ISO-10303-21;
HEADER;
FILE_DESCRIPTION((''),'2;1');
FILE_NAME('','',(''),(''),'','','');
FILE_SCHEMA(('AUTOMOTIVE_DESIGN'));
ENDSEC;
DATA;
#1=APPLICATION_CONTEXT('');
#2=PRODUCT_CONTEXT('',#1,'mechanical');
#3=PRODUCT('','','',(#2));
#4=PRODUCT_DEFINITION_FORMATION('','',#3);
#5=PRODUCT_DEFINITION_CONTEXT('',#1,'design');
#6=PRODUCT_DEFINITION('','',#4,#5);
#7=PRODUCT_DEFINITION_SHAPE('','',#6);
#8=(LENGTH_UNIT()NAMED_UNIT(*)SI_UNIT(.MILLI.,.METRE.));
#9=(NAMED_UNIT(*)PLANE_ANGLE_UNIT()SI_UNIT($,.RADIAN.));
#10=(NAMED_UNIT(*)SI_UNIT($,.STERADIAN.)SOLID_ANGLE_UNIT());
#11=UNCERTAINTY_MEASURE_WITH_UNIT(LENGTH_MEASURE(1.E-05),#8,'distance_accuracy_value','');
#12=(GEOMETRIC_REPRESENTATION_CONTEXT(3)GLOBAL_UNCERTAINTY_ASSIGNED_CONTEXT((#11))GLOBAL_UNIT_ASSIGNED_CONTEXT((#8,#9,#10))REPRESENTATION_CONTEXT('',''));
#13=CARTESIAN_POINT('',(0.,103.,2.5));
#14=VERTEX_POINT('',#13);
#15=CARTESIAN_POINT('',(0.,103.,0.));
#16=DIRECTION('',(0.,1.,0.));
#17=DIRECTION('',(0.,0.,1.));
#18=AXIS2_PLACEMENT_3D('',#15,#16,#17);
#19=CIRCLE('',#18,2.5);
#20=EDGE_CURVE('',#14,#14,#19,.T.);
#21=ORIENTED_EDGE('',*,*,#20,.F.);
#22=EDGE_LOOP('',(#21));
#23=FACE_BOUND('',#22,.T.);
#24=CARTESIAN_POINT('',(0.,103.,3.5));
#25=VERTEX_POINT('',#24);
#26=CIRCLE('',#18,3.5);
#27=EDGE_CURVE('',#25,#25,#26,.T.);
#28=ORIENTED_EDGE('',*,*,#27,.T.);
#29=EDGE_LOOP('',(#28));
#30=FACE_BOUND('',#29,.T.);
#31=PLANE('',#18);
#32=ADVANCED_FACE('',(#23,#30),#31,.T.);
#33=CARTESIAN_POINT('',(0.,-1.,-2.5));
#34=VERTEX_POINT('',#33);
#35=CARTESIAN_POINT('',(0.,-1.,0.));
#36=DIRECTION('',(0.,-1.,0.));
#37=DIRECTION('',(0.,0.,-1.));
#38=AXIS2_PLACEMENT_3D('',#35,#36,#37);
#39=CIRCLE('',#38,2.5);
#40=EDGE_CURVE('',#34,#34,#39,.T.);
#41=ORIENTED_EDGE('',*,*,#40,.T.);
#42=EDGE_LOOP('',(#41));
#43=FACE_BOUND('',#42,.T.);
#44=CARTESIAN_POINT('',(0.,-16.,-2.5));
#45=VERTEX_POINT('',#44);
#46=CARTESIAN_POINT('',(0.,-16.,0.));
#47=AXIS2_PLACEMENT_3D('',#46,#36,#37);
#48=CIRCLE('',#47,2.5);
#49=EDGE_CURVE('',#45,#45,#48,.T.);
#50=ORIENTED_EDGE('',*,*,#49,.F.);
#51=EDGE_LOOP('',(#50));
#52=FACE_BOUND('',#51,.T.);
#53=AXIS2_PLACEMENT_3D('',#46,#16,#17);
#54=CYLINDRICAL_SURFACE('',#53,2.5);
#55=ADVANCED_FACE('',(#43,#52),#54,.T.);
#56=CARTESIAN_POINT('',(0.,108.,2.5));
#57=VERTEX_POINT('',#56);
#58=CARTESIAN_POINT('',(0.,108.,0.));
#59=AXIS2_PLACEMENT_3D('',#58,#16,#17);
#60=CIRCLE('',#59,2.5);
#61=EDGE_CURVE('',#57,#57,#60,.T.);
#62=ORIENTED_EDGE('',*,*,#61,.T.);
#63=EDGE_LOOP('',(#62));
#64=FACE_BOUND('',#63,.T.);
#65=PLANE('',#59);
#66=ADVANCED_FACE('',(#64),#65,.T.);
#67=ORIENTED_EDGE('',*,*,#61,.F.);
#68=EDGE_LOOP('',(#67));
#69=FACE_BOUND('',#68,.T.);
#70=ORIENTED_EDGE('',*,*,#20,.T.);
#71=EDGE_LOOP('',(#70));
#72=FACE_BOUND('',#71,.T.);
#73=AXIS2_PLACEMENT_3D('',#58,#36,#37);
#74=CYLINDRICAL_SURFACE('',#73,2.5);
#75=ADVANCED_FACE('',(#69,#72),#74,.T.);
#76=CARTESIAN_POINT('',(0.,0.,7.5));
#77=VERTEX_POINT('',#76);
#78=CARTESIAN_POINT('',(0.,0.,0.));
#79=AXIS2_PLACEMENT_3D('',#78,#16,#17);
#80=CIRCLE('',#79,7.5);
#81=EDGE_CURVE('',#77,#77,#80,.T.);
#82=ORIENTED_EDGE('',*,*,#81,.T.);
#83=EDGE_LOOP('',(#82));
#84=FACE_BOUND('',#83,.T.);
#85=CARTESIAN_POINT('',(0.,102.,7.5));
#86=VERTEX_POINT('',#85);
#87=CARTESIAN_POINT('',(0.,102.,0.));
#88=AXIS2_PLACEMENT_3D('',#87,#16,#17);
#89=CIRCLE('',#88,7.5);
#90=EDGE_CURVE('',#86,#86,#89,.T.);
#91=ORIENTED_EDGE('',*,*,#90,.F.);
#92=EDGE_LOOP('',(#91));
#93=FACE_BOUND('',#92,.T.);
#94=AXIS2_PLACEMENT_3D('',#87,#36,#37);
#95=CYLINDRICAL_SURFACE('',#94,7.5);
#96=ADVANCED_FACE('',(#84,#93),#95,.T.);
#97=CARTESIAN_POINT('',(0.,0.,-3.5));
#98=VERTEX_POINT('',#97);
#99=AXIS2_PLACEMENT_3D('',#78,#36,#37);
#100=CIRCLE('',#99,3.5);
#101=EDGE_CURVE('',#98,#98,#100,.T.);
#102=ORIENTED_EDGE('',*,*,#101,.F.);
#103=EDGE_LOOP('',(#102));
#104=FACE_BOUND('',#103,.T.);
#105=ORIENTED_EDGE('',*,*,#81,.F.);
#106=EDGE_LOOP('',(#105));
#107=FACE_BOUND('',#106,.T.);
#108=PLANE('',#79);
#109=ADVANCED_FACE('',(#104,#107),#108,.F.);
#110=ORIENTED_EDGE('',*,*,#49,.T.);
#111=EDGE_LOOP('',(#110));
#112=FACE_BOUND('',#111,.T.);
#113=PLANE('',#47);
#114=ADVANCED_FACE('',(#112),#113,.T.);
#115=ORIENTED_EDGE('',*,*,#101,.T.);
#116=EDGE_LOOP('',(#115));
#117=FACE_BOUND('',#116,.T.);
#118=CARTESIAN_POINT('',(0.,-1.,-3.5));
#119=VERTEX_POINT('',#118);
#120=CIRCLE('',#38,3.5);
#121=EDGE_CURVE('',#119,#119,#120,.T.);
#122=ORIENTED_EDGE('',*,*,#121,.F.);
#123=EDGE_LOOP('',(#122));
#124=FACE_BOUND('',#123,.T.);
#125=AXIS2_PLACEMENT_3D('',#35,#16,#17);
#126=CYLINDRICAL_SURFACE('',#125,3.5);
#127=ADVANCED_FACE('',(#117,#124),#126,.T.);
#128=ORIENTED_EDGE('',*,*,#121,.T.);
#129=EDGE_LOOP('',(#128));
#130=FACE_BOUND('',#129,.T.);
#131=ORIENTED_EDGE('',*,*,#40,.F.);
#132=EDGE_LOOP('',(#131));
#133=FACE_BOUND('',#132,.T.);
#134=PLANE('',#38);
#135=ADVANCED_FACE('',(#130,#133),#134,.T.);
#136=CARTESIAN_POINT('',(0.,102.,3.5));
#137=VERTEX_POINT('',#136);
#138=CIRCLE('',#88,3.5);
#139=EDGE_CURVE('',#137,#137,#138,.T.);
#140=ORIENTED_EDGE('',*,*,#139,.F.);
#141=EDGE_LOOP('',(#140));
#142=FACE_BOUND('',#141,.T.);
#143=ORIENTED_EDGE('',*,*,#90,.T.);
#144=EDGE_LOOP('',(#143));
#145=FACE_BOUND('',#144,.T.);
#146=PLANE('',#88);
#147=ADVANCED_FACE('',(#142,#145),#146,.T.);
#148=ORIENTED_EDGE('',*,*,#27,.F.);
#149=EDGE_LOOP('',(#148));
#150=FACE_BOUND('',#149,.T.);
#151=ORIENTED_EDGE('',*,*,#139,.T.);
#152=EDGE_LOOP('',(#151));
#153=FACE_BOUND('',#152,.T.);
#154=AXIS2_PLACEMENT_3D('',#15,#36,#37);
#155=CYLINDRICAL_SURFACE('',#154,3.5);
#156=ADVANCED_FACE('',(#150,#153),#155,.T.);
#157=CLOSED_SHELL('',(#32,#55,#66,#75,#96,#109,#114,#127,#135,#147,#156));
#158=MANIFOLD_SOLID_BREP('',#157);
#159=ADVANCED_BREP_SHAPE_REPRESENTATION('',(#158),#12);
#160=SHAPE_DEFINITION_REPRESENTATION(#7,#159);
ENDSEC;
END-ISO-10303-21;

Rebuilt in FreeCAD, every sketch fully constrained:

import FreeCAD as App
import Part
import Sketcher

V = App.Vector
Q = App.Units.Quantity

doc = App.newDocument("Part")
body = doc.addObject("PartDesign::Body", "Body")

sketch1 = doc.addObject("Sketcher::SketchObject", "Sketch")
body.addObject(sketch1)
sketch1.AttachmentSupport = (doc.XZ_Plane, [""])
sketch1.MapMode = "FlatFace"
sketch1.addGeometry(Part.Circle(V(0, 0, 0), V(0, 0, 1), 7.5), False)
sketch1.addConstraint(Sketcher.Constraint("Coincident", 0, 3, -1, 1))
sketch1.addConstraint(Sketcher.Constraint("Diameter", 0, Q("15 mm")))
pad1 = doc.addObject("PartDesign::Pad", "Pad")
body.addObject(pad1)
pad1.Profile = sketch1
pad1.Length = 102
pad1.Reversed = True

sketch2 = doc.addObject("Sketcher::SketchObject", "Sketch001")
body.addObject(sketch2)
sketch2.AttachmentSupport = (doc.XZ_Plane, [""])
sketch2.MapMode = "FlatFace"
sketch2.addGeometry(Part.Circle(V(0, 0, 0), V(0, 0, 1), 3.5), False)
sketch2.addConstraint(Sketcher.Constraint("Coincident", 0, 3, -1, 1))
sketch2.addConstraint(Sketcher.Constraint("Diameter", 0, Q("7 mm")))
pad2 = doc.addObject("PartDesign::Pad", "Pad001")
body.addObject(pad2)
pad2.Profile = sketch2
pad2.Length = 1

sketch3 = doc.addObject("Sketcher::SketchObject", "Sketch002")
body.addObject(sketch3)
sketch3.AttachmentSupport = (doc.XZ_Plane, [""])
sketch3.MapMode = "FlatFace"
sketch3.AttachmentOffset = App.Placement(V(0, 0, 1), App.Rotation())
sketch3.addGeometry(Part.Circle(V(0, 0, 0), V(0, 0, 1), 2.5), False)
sketch3.addConstraint(Sketcher.Constraint("Coincident", 0, 3, -1, 1))
sketch3.addConstraint(Sketcher.Constraint("Diameter", 0, Q("5 mm")))
pad3 = doc.addObject("PartDesign::Pad", "Pad002")
body.addObject(pad3)
pad3.Profile = sketch3
pad3.Length = 15

sketch4 = doc.addObject("Sketcher::SketchObject", "Sketch003")
body.addObject(sketch4)
sketch4.AttachmentSupport = (doc.XZ_Plane, [""])
sketch4.MapMode = "FlatFace"
sketch4.AttachmentOffset = App.Placement(V(0, 0, -103), App.Rotation())
sketch4.addGeometry(Part.Circle(V(0, 0, 0), V(0, 0, 1), 3.5), False)
sketch4.addConstraint(Sketcher.Constraint("Coincident", 0, 3, -1, 1))
sketch4.addConstraint(Sketcher.Constraint("Diameter", 0, Q("7 mm")))
pad4 = doc.addObject("PartDesign::Pad", "Pad003")
body.addObject(pad4)
pad4.Profile = sketch4
pad4.Length = 1

sketch5 = doc.addObject("Sketcher::SketchObject", "Sketch004")
body.addObject(sketch5)
sketch5.AttachmentSupport = (doc.XZ_Plane, [""])
sketch5.MapMode = "FlatFace"
sketch5.AttachmentOffset = App.Placement(V(0, 0, -108), App.Rotation())
sketch5.addGeometry(Part.Circle(V(0, 0, 0), V(0, 0, 1), 2.5), False)
sketch5.addConstraint(Sketcher.Constraint("Coincident", 0, 3, -1, 1))
sketch5.addConstraint(Sketcher.Constraint("Diameter", 0, Q("5 mm")))
pad5 = doc.addObject("PartDesign::Pad", "Pad004")
body.addObject(pad5)
pad5.Profile = sketch5
pad5.Length = 5

doc.recompute()
